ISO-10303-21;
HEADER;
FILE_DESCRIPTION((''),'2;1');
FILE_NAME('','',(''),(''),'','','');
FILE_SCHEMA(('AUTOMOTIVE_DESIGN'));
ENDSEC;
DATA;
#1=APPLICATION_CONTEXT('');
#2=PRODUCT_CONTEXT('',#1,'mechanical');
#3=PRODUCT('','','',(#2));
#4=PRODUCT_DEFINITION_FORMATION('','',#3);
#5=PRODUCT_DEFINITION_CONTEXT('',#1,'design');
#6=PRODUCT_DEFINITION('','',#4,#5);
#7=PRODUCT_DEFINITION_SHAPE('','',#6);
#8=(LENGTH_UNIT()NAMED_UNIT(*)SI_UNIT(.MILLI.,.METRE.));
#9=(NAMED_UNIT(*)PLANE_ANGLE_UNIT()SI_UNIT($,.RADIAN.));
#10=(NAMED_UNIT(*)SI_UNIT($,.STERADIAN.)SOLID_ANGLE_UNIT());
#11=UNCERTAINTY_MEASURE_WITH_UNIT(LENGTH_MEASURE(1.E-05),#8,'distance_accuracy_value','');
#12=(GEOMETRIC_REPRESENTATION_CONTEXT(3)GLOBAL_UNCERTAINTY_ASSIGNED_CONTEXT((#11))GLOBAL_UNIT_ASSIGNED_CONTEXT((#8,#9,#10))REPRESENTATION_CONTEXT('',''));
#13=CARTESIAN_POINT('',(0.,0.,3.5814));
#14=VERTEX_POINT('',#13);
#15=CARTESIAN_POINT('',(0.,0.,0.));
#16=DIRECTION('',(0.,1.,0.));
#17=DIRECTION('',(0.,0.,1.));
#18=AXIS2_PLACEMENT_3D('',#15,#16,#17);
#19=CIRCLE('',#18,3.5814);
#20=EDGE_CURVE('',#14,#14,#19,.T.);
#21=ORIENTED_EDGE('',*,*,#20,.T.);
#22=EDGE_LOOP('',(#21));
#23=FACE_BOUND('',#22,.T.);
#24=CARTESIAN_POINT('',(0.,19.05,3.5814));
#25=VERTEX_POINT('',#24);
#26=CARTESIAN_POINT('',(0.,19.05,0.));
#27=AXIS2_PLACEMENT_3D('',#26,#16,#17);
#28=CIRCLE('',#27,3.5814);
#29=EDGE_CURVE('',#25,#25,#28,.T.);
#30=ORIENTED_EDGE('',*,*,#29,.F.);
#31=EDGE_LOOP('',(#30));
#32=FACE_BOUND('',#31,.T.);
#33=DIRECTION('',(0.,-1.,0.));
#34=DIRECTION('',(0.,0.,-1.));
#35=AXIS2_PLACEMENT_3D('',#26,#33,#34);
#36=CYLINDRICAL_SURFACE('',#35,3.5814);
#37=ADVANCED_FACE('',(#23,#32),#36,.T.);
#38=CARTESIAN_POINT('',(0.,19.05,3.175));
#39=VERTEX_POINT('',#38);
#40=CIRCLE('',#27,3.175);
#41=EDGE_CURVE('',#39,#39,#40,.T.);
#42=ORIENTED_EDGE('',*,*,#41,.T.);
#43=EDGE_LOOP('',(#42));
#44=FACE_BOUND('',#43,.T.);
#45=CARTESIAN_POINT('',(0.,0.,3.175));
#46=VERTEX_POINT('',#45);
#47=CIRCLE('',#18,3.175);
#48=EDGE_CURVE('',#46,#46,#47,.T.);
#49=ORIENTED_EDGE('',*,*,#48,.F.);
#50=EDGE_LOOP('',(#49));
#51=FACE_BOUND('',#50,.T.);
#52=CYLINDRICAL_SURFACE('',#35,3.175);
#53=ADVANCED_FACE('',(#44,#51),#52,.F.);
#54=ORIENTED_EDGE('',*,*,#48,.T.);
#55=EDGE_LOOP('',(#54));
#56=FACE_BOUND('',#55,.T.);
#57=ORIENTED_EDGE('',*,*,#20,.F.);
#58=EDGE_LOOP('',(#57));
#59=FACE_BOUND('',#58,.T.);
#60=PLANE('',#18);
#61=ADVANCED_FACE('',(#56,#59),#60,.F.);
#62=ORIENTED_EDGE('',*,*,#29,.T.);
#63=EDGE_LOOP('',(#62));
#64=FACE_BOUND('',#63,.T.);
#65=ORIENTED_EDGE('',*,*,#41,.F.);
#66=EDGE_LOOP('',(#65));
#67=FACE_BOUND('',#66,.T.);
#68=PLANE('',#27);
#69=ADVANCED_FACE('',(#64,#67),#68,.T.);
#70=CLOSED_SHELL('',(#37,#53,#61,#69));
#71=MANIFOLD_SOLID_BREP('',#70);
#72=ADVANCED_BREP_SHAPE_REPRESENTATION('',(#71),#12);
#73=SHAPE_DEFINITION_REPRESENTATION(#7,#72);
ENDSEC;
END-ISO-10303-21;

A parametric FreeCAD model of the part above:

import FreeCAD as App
import Part
import Sketcher
from FreeCAD import Vector
Q = App.Units.Quantity

doc = App.newDocument("Part")
body = doc.addObject("PartDesign::Body", "Body")

# Sketch on XZ plane
sketch1 = doc.addObject("Sketcher::SketchObject", "Sketch")
body.addObject(sketch1)
sketch1.AttachmentSupport = (doc.XZ_Plane, [""])
sketch1.MapMode = "FlatFace"
sketch1.addGeometry(Part.Circle(Vector(0, 0, 0), Vector(0, 0, 1), 3.5814), False)
sketch1.addGeometry(Part.Circle(Vector(0, 0, 0), Vector(0, 0, 1), 3.175), False)
sketch1.addConstraint(Sketcher.Constraint("Coincident", 0, 3, -1, 1))
sketch1.addConstraint(Sketcher.Constraint("Coincident", 1, 3, -1, 1))
sketch1.addConstraint(Sketcher.Constraint("Diameter", 1, Q("0.25 in")))
sketch1.addConstraint(Sketcher.Constraint("Diameter", 0, Q("0.282 in")))
pad1 = doc.addObject("PartDesign::Pad", "Pad")
body.addObject(pad1)
pad1.Profile = sketch1
pad1.Length = Q("0.75 in")
pad1.Reversed = True

doc.recompute()
